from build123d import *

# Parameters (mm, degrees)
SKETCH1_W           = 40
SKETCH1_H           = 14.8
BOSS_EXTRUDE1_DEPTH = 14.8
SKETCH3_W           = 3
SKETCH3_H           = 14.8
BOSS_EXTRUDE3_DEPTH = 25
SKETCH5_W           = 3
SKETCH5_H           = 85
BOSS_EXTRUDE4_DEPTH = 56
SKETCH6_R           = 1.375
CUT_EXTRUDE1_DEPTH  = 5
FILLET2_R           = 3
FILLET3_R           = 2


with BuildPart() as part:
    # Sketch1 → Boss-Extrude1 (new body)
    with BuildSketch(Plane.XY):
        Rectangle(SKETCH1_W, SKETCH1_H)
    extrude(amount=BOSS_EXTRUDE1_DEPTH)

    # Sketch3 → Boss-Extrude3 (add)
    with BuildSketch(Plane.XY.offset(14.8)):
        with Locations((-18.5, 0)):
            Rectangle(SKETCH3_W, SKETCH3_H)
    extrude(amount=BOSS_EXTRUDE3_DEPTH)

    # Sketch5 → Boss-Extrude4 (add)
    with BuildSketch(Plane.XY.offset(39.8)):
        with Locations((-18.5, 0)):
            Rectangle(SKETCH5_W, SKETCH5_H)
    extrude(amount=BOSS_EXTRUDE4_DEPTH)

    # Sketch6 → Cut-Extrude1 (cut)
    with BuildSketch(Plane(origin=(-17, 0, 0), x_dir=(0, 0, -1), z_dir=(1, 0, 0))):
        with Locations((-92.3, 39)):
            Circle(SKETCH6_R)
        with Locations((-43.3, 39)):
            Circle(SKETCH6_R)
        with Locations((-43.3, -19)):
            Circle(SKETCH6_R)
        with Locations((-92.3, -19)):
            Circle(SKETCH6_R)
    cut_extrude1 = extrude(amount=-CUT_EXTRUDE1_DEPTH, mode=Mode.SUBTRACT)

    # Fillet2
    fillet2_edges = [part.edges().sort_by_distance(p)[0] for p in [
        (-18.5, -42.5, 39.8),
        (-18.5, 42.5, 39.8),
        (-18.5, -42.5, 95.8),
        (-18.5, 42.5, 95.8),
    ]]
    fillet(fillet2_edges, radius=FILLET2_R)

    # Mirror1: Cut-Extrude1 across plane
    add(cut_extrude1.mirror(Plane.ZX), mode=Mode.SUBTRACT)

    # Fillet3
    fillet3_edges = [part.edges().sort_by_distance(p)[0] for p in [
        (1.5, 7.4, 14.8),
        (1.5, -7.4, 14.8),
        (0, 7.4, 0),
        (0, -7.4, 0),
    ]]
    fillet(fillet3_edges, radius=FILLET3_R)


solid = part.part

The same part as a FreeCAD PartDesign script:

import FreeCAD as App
import Part
import Sketcher
from FreeCAD import Vector
Q = App.Units.Quantity


def edges_at(feature, points):
    """Names of the edges that pass closest to the given points."""
    edges = feature.Shape.Edges
    near = lambda p: min(range(len(edges)), key=lambda i: edges[i].distToShape(Part.Vertex(*p))[0])
    return sorted({f"Edge{near(p) + 1}" for p in points})

doc = App.newDocument("Part")
body = doc.addObject("PartDesign::Body", "Body")

# Sketch on XY plane
sketch1 = body.newObject("Sketcher::SketchObject", "Sketch")
sketch1.AttachmentSupport = (doc.getObject("XY_Plane"), [""])
sketch1.MapMode = "FlatFace"
sketch1.addGeometry([
    Part.LineSegment(Vector(-20, 7, 0), Vector(-20, -7, 0)),
    Part.LineSegment(Vector(-20, -7, 0), Vector(20, -7, 0)),
    Part.LineSegment(Vector(20, -7, 0), Vector(20, 7, 0)),
    Part.LineSegment(Vector(20, 7, 0), Vector(-20, 7, 0)),
], False)
sketch1.addConstraint([
    Sketcher.Constraint("Coincident", 0, 2, 1, 1),
    Sketcher.Constraint("Coincident", 1, 2, 2, 1),
    Sketcher.Constraint("Coincident", 2, 2, 3, 1),
    Sketcher.Constraint("Coincident", 3, 2, 0, 1),
    Sketcher.Constraint("Vertical", 0),
    Sketcher.Constraint("Horizontal", 1),
    Sketcher.Constraint("Vertical", 2),
    Sketcher.Constraint("Horizontal", 3),
    Sketcher.Constraint("Symmetric", 0, 2, 2, 2, -1, 1),
    Sketcher.Constraint("DistanceX", 1, 1, 1, 2, Q("40 mm")),
    Sketcher.Constraint("DistanceY", 0, 2, 0, 1, Q("14.8 mm")),
])
pad1 = body.newObject("PartDesign::Pad", "Pad")
pad1.Profile = sketch1
pad1.Length = 14.8

# Sketch on XY plane
sketch2 = body.newObject("Sketcher::SketchObject", "Sketch001")
sketch2.AttachmentSupport = (doc.getObject("XY_Plane"), [""])
sketch2.MapMode = "FlatFace"
sketch2.AttachmentOffset = App.Placement(Vector(0, 0, 14.8), App.Rotation())
sketch2.addGeometry([
    Part.LineSegment(Vector(-20, 7.4, 0), Vector(-20, -7.4, 0)),
    Part.LineSegment(Vector(-20, -7.4, 0), Vector(-17, -7.4, 0)),
    Part.LineSegment(Vector(-17, -7.4, 0), Vector(-17, 7.4, 0)),
    Part.LineSegment(Vector(-17, 7.4, 0), Vector(-20, 7.4, 0)),
], False)
sketch2.addConstraint([
    Sketcher.Constraint("Coincident", 0, 2, 1, 1),
    Sketcher.Constraint("Coincident", 1, 2, 2, 1),
    Sketcher.Constraint("Coincident", 2, 2, 3, 1),
    Sketcher.Constraint("Coincident", 3, 2, 0, 1),
    Sketcher.Constraint("Vertical", 0),
    Sketcher.Constraint("Horizontal", 1),
    Sketcher.Constraint("Vertical", 2),
    Sketcher.Constraint("Horizontal", 3),
    Sketcher.Constraint("DistanceX", 1, 1, 1, 2, Q("3 mm")),
    Sketcher.Constraint("DistanceY", 0, 2, 0, 1, Q("14.8 mm")),
    Sketcher.Constraint("DistanceX", 0, 2, -1, 1, Q("20 mm")),
    Sketcher.Constraint("DistanceY", 0, 2, -1, 1, Q("7.4 mm")),
])
pad2 = body.newObject("PartDesign::Pad", "Pad001")
pad2.Profile = sketch2
pad2.Length = 25

# Sketch on XY plane
sketch3 = body.newObject("Sketcher::SketchObject", "Sketch002")
sketch3.AttachmentSupport = (doc.getObject("XY_Plane"), [""])
sketch3.MapMode = "FlatFace"
sketch3.AttachmentOffset = App.Placement(Vector(0, 0, 39.8), App.Rotation())
sketch3.addGeometry([
    Part.LineSegment(Vector(-20, 42.5, 0), Vector(-20, -42.5, 0)),
    Part.LineSegment(Vector(-20, -42.5, 0), Vector(-17, -42.5, 0)),
    Part.LineSegment(Vector(-17, -42.5, 0), Vector(-17, 42.5, 0)),
    Part.LineSegment(Vector(-17, 42.5, 0), Vector(-20, 42.5, 0)),
], False)
sketch3.addConstraint([
    Sketcher.Constraint("Coincident", 0, 2, 1, 1),
    Sketcher.Constraint("Coincident", 1, 2, 2, 1),
    Sketcher.Constraint("Coincident", 2, 2, 3, 1),
    Sketcher.Constraint("Coincident", 3, 2, 0, 1),
    Sketcher.Constraint("Vertical", 0),
    Sketcher.Constraint("Horizontal", 1),
    Sketcher.Constraint("Vertical", 2),
    Sketcher.Constraint("Horizontal", 3),
    Sketcher.Constraint("DistanceX", 1, 1, 1, 2, Q("3 mm")),
    Sketcher.Constraint("DistanceY", 0, 2, 0, 1, Q("85 mm")),
    Sketcher.Constraint("DistanceX", 0, 2, -1, 1, Q("20 mm")),
    Sketcher.Constraint("DistanceY", 0, 2, -1, 1, Q("42.5 mm")),
])
pad3 = body.newObject("PartDesign::Pad", "Pad002")
pad3.Profile = sketch3
pad3.Length = 56

# Sketch on YZ plane
sketch4 = body.newObject("Sketcher::SketchObject", "Sketch003")
sketch4.AttachmentSupport = (doc.getObject("YZ_Plane"), [""])
sketch4.MapMode = "FlatFace"
sketch4.AttachmentOffset = App.Placement(Vector(0, 0, -17), App.Rotation())
sketch4.addGeometry([
    Part.Circle(Vector(39, 92.3, 0), Vector(0, 0, 1), 1.4),
    Part.Circle(Vector(39, 43.3, 0), Vector(0, 0, 1), 1.4),
    Part.Circle(Vector(-19, 43.3, 0), Vector(0, 0, 1), 1.4),
    Part.Circle(Vector(-19, 92.3, 0), Vector(0, 0, 1), 1.4),
], False)
sketch4.addConstraint([
    Sketcher.Constraint("Equal", 0, 1),
    Sketcher.Constraint("Equal", 1, 2),
    Sketcher.Constraint("Equal", 2, 3),
    Sketcher.Constraint("Horizontal", 1, 3, 2, 3),
    Sketcher.Constraint("Horizontal", 0, 3, 3, 3),
    Sketcher.Constraint("Vertical", 0, 3, 1, 3),
    Sketcher.Constraint("Vertical", 2, 3, 3, 3),
    Sketcher.Constraint("Diameter", 0, Q("2.75 mm")),
    Sketcher.Constraint("DistanceX", -1, 1, 0, 3, Q("39 mm")),
    Sketcher.Constraint("DistanceX", 2, 3, -1, 1, Q("19 mm")),
    Sketcher.Constraint("DistanceY", 1, 3, 0, 3, Q("49 mm")),
    Sketcher.Constraint("DistanceY", -1, 1, 0, 3, Q("92.3 mm")),
])
pocket1 = body.newObject("PartDesign::Pocket", "Pocket")
pocket1.Profile = sketch4
pocket1.Length = 5
doc.recompute()

fillet = body.newObject("PartDesign::Fillet", "Fillet")
fillet.Base = (pocket1, edges_at(pocket1, [
    (-18.5, -42.5, 39.8),
    (-18.5, 42.5, 39.8),
    (-18.5, -42.5, 95.8),
    (-18.5, 42.5, 95.8),
]))
fillet.Radius = 3
doc.recompute()

mirrored = body.newObject("PartDesign::Mirrored", "Mirrored")
mirrored.Originals = [pocket1]
mirrored.MirrorPlane = (doc.getObject("XZ_Plane"), [""])
body.Tip = mirrored
doc.recompute()

fillet2 = body.newObject("PartDesign::Fillet", "Fillet001")
fillet2.Base = (mirrored, edges_at(mirrored, [
    (1.5, 7.4, 14.8),
    (1.5, -7.4, 14.8),
    (0, 7.4, 0),
    (0, -7.4, 0),
]))
fillet2.Radius = 2

doc.recompute()
